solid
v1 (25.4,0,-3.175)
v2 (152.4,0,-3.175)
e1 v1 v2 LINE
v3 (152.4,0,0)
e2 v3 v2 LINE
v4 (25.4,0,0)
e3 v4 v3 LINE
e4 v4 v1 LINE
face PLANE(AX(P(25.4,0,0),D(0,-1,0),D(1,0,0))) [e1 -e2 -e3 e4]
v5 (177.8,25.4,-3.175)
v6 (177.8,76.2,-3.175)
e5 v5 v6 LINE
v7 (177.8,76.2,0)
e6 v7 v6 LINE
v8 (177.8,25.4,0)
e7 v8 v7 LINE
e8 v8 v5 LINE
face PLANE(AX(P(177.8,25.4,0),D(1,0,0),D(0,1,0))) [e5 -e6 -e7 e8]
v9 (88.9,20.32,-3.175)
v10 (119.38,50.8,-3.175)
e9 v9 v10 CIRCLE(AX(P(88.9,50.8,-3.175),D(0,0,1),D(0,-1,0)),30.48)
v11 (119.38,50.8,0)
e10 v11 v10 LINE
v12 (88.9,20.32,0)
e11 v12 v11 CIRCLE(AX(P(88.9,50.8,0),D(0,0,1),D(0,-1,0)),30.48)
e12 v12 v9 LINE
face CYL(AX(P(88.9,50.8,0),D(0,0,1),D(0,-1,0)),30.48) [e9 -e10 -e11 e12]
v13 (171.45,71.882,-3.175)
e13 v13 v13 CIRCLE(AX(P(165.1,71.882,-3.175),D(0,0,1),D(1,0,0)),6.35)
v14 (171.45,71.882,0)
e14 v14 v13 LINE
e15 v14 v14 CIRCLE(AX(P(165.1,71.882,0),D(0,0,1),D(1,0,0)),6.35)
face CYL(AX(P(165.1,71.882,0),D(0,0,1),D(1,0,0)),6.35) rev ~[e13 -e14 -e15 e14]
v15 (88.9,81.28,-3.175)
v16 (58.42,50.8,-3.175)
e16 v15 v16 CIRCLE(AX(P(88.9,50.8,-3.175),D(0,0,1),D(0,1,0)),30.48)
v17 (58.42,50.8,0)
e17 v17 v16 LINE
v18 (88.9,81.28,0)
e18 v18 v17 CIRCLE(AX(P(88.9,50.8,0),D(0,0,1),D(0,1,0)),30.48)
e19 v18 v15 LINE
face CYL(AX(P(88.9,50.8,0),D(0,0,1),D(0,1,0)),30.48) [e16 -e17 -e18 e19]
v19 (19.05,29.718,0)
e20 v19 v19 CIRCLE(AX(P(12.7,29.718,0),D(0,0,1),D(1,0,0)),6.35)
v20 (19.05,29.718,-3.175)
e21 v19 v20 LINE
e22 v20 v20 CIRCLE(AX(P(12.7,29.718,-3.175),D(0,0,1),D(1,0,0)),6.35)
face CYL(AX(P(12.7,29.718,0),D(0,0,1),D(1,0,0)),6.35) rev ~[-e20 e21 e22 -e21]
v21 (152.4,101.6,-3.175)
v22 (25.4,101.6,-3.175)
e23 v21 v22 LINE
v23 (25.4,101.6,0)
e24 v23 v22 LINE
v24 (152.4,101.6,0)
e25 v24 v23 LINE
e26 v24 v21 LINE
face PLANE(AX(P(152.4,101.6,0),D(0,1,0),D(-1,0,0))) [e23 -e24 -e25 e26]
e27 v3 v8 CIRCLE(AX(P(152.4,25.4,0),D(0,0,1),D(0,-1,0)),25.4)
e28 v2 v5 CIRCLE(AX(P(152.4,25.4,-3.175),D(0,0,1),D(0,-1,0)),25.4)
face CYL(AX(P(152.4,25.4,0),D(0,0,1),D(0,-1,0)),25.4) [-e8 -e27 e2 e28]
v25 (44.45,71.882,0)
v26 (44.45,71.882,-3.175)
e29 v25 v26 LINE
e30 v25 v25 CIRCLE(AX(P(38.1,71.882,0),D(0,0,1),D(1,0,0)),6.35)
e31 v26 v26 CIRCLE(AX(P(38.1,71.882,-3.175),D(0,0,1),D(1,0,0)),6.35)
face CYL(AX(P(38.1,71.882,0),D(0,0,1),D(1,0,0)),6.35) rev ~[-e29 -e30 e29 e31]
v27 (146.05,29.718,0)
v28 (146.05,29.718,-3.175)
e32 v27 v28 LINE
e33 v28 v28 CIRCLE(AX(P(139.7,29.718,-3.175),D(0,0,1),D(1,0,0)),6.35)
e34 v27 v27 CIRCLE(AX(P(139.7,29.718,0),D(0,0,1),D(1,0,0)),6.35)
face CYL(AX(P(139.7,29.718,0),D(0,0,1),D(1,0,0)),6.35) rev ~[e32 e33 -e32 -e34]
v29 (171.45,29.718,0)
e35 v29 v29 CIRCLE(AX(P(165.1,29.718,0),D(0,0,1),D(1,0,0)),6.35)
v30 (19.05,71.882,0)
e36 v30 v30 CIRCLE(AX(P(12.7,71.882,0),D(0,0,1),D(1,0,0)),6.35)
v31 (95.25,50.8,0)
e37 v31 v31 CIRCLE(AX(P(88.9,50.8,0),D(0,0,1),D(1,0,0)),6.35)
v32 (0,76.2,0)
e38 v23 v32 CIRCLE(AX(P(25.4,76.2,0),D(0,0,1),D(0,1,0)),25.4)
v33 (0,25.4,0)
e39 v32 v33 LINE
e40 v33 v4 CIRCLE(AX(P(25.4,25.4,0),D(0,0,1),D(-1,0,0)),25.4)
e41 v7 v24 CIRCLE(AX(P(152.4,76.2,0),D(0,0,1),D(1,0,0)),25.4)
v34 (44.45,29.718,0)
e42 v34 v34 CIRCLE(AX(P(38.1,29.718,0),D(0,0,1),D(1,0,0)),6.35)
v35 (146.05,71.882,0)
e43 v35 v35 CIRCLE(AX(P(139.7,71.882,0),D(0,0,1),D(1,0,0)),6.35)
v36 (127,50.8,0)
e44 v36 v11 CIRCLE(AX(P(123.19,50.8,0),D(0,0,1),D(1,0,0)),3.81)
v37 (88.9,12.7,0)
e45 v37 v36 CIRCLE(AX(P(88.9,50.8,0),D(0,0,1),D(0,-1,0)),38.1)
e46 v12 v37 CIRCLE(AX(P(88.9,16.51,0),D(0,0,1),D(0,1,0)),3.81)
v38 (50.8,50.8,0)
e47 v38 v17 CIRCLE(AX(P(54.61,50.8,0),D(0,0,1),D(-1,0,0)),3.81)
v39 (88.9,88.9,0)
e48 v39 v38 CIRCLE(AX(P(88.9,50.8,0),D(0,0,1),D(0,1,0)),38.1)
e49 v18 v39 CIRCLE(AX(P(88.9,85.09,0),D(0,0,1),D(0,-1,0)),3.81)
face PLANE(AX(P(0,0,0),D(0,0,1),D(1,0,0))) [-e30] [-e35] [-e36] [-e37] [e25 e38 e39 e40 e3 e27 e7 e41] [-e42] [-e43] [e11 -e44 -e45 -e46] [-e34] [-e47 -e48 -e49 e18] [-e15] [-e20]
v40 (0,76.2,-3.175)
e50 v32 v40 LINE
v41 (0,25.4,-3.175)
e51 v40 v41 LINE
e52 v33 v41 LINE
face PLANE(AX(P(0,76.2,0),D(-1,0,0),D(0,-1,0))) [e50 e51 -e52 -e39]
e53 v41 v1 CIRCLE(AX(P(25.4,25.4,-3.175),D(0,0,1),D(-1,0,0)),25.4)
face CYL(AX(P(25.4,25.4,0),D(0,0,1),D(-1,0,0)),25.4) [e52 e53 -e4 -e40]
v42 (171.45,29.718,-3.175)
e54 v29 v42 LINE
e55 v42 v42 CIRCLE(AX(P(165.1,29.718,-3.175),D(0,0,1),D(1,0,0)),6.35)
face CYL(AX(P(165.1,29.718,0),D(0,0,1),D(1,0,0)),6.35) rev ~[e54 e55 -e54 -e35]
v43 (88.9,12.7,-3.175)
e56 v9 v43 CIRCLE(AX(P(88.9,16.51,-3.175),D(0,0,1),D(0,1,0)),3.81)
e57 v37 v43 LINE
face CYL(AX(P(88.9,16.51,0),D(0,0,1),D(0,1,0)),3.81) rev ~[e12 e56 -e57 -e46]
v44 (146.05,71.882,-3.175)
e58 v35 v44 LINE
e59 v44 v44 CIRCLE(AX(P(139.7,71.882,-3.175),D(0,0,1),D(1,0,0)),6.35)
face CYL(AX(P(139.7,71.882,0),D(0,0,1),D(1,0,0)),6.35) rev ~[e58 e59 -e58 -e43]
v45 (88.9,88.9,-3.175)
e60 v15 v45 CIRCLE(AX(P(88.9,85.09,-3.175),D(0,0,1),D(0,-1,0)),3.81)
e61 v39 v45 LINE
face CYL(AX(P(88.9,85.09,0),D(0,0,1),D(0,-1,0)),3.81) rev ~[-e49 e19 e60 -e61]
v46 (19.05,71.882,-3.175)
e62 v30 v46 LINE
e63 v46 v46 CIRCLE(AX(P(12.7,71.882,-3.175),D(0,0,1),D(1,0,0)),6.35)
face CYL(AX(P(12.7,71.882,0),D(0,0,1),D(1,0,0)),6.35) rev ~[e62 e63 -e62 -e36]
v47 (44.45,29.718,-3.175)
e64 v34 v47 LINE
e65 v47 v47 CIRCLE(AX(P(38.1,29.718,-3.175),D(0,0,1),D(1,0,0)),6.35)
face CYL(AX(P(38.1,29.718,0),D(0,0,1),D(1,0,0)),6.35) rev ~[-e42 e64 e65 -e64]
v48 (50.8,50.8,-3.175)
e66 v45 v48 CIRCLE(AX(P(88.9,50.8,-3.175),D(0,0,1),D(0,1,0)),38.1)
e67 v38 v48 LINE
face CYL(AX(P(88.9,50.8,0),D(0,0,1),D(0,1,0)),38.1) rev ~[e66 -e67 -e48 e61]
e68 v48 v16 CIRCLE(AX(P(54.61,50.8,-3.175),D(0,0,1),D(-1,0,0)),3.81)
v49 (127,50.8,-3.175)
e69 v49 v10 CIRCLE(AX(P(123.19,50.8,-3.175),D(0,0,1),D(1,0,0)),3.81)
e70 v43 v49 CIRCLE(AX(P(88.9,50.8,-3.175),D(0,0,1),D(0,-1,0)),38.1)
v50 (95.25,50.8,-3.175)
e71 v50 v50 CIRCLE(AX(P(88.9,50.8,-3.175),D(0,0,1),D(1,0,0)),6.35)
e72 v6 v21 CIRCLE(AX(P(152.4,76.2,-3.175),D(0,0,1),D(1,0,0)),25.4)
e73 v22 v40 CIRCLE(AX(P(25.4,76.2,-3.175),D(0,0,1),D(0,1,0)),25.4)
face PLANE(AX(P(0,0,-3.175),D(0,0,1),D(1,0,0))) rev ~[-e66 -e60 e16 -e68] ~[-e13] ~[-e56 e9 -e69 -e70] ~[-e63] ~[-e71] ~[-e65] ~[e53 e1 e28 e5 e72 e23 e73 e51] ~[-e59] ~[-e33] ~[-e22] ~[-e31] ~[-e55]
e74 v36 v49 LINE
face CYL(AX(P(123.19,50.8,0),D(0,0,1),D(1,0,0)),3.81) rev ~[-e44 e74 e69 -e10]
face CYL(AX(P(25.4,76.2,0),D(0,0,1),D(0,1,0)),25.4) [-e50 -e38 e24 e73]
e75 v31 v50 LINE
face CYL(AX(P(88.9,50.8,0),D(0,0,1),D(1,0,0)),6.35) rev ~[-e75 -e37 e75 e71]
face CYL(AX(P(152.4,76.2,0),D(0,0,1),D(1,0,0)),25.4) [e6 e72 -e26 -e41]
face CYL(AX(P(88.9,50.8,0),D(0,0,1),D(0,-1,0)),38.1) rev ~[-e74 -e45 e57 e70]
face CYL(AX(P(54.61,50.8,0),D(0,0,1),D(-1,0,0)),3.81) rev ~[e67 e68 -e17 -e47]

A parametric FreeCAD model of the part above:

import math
import FreeCAD as App
import Part
import Sketcher

V = App.Vector
Q = App.Units.Quantity

doc = App.newDocument("Part")
body = doc.addObject("PartDesign::Body", "Body")

sketch1 = body.newObject("Sketcher::SketchObject", "Sketch")
sketch1.AttachmentSupport = (doc.getObject("XY_Plane"), [""])
sketch1.MapMode = "FlatFace"
sketch1.addGeometry(Part.ArcOfCircle(Part.Circle(V(25.4, 25.4, 0), V(0, 0, 1), 25.4), math.radians(180), math.radians(270)), False)
sketch1.addGeometry(Part.LineSegment(V(25.4, 0, 0), V(152.4, 0, 0)), False)
sketch1.addGeometry(Part.ArcOfCircle(Part.Circle(V(152.4, 25.4, 0), V(0, 0, 1), 25.4), math.radians(-90), math.radians(0)), False)
sketch1.addGeometry(Part.LineSegment(V(177.8, 25.4, 0), V(177.8, 76.2, 0)), False)
sketch1.addGeometry(Part.ArcOfCircle(Part.Circle(V(152.4, 76.2, 0), V(0, 0, 1), 25.4), math.radians(0), math.radians(90)), False)
sketch1.addGeometry(Part.LineSegment(V(152.4, 101.6, 0), V(25.4, 101.6, 0)), False)
sketch1.addGeometry(Part.ArcOfCircle(Part.Circle(V(25.4, 76.2, 0), V(0, 0, 1), 25.4), math.radians(90), math.radians(180)), False)
sketch1.addGeometry(Part.LineSegment(V(0, 76.2, 0), V(0, 25.4, 0)), False)
sketch1.addGeometry(Part.ArcOfCircle(Part.Circle(V(88.9, 16.51, 0), V(0, 0, 1), 3.81), math.radians(90), math.radians(270)), False)
sketch1.addGeometry(Part.ArcOfCircle(Part.Circle(V(88.9, 50.8, 0), V(0, 0, 1), 30.48), math.radians(-90), math.radians(0)), False)
sketch1.addGeometry(Part.ArcOfCircle(Part.Circle(V(123.19, 50.8, 0), V(0, 0, 1), 3.81), math.radians(0), math.radians(180)), False)
sketch1.addGeometry(Part.ArcOfCircle(Part.Circle(V(88.9, 50.8, 0), V(0, 0, 1), 38.1), math.radians(-90), math.radians(0)), False)
sketch1.addGeometry(Part.Circle(V(88.9, 50.8, 0), V(0, 0, 1), 6.35), False)
sketch1.addGeometry(Part.ArcOfCircle(Part.Circle(V(88.9, 50.8, 0), V(0, 0, 1), 38.1), math.radians(90), math.radians(180)), False)
sketch1.addGeometry(Part.ArcOfCircle(Part.Circle(V(88.9, 85.09, 0), V(0, 0, 1), 3.81), math.radians(-90), math.radians(90)), False)
sketch1.addGeometry(Part.ArcOfCircle(Part.Circle(V(88.9, 50.8, 0), V(0, 0, 1), 30.48), math.radians(90), math.radians(180)), False)
sketch1.addGeometry(Part.ArcOfCircle(Part.Circle(V(54.61, 50.8, 0), V(0, 0, 1), 3.81), math.radians(180), math.radians(360)), False)
sketch1.addConstraint(Sketcher.Constraint("Tangent", 0, 2, 1, 1))
sketch1.addConstraint(Sketcher.Constraint("Tangent", 1, 2, 2, 1))
sketch1.addConstraint(Sketcher.Constraint("Tangent", 2, 2, 3, 1))
sketch1.addConstraint(Sketcher.Constraint("Tangent", 3, 2, 4, 1))
sketch1.addConstraint(Sketcher.Constraint("Tangent", 4, 2, 5, 1))
sketch1.addConstraint(Sketcher.Constraint("Tangent", 5, 2, 6, 1))
sketch1.addConstraint(Sketcher.Constraint("Tangent", 6, 2, 7, 1))
sketch1.addConstraint(Sketcher.Constraint("Tangent", 7, 2, 0, 1))
sketch1.addConstraint(Sketcher.Constraint("Tangent", 8, 1, 9, 1))
sketch1.addConstraint(Sketcher.Constraint("Tangent", 9, 2, 10, 2))
sketch1.addConstraint(Sketcher.Constraint("Tangent", 10, 1, 11, 2))
sketch1.addConstraint(Sketcher.Constraint("Tangent", 11, 1, 8, 2))
sketch1.addConstraint(Sketcher.Constraint("Tangent", 13, 1, 14, 2))
sketch1.addConstraint(Sketcher.Constraint("Tangent", 14, 1, 15, 1))
sketch1.addConstraint(Sketcher.Constraint("Tangent", 15, 2, 16, 2))
sketch1.addConstraint(Sketcher.Constraint("Tangent", 16, 1, 13, 2))
sketch1.addConstraint(Sketcher.Constraint("Horizontal", 1))
sketch1.addConstraint(Sketcher.Constraint("Vertical", 3))
sketch1.addConstraint(Sketcher.Constraint("Horizontal", 5))
sketch1.addConstraint(Sketcher.Constraint("Vertical", 7))
sketch1.addConstraint(Sketcher.Constraint("Coincident", 11, 3, 9, 3))
sketch1.addConstraint(Sketcher.Constraint("Coincident", 12, 3, 9, 3))
sketch1.addConstraint(Sketcher.Constraint("Coincident", 13, 3, 9, 3))
sketch1.addConstraint(Sketcher.Constraint("Coincident", 15, 3, 9, 3))
sketch1.addConstraint(Sketcher.Constraint("Equal", 0, 2))
sketch1.addConstraint(Sketcher.Constraint("Equal", 2, 4))
sketch1.addConstraint(Sketcher.Constraint("Equal", 4, 6))
sketch1.addConstraint(Sketcher.Constraint("Equal", 11, 13))
sketch1.addConstraint(Sketcher.Constraint("Equal", 10, 14))
sketch1.addConstraint(Sketcher.Constraint("PointOnObject", 0, 2, -1))
sketch1.addConstraint(Sketcher.Constraint("PointOnObject", 6, 2, -2))
sketch1.addConstraint(Sketcher.Constraint("Horizontal", 9, 3, 10, 3))
sketch1.addConstraint(Sketcher.Constraint("Horizontal", 15, 3, 16, 3))
sketch1.addConstraint(Sketcher.Constraint("Vertical", 8, 3, 9, 3))
sketch1.addConstraint(Sketcher.Constraint("Vertical", 13, 3, 14, 3))
sketch1.addConstraint(Sketcher.Constraint("Radius", 0, Q("1 in")))
sketch1.addConstraint(Sketcher.Constraint("Diameter", 12, Q("0.5 in")))
sketch1.addConstraint(Sketcher.Constraint("DistanceY", 3, 1, 3, 2, Q("2 in")))
sketch1.addConstraint(Sketcher.Constraint("Radius", 8, Q("0.15 in")))
sketch1.addConstraint(Sketcher.Constraint("DistanceY", -1, 1, 9, 3, Q("2 in")))
sketch1.addConstraint(Sketcher.Constraint("DistanceX", -1, 1, 2, 2, Q("7 in")))
sketch1.addConstraint(Sketcher.Constraint("DistanceX", -1, 1, 16, 1, Q("2 in")))
sketch1.addConstraint(Sketcher.Constraint("DistanceX", -1, 1, 8, 3, Q("3.5 in")))
pad1 = body.newObject("PartDesign::Pad", "Pad")
pad1.Profile = sketch1
pad1.Length = Q("0.125 in")
pad1.Reversed = True

sketch2 = body.newObject("Sketcher::SketchObject", "Sketch001")
sketch2.AttachmentSupport = (doc.getObject("XY_Plane"), [""])
sketch2.MapMode = "FlatFace"
sketch2.addGeometry(Part.Circle(V(12.7, 71.882, 0), V(0, 0, 1), 6.35), False)
sketch2.addGeometry(Part.Circle(V(38.1, 71.882, 0), V(0, 0, 1), 6.35), False)
sketch2.addGeometry(Part.Circle(V(12.7, 29.718, 0), V(0, 0, 1), 6.35), False)
sketch2.addGeometry(Part.Circle(V(38.1, 29.718, 0), V(0, 0, 1), 6.35), False)
sketch2.addGeometry(Part.Circle(V(165.1, 71.882, 0), V(0, 0, 1), 6.35), False)
sketch2.addGeometry(Part.Circle(V(139.7, 71.882, 0), V(0, 0, 1), 6.35), False)
sketch2.addGeometry(Part.Circle(V(165.1, 29.718, 0), V(0, 0, 1), 6.35), False)
sketch2.addGeometry(Part.Circle(V(139.7, 29.718, 0), V(0, 0, 1), 6.35), False)
sketch2.addConstraint(Sketcher.Constraint("Equal", 0, 1))
sketch2.addConstraint(Sketcher.Constraint("Equal", 1, 2))
sketch2.addConstraint(Sketcher.Constraint("Equal", 2, 3))
sketch2.addConstraint(Sketcher.Constraint("Equal", 3, 4))
sketch2.addConstraint(Sketcher.Constraint("Equal", 4, 5))
sketch2.addConstraint(Sketcher.Constraint("Equal", 5, 6))
sketch2.addConstraint(Sketcher.Constraint("Equal", 6, 7))
sketch2.addConstraint(Sketcher.Constraint("Horizontal", 0, 3, 1, 3))
sketch2.addConstraint(Sketcher.Constraint("Horizontal", 2, 3, 3, 3))
sketch2.addConstraint(Sketcher.Constraint("Horizontal", 1, 3, 4, 3))
sketch2.addConstraint(Sketcher.Constraint("Horizontal", 4, 3, 5, 3))
sketch2.addConstraint(Sketcher.Constraint("Horizontal", 3, 3, 6, 3))
sketch2.addConstraint(Sketcher.Constraint("Horizontal", 6, 3, 7, 3))
sketch2.addConstraint(Sketcher.Constraint("Vertical", 0, 3, 2, 3))
sketch2.addConstraint(Sketcher.Constraint("Vertical", 1, 3, 3, 3))
sketch2.addConstraint(Sketcher.Constraint("Vertical", 4, 3, 6, 3))
sketch2.addConstraint(Sketcher.Constraint("Vertical", 5, 3, 7, 3))
sketch2.addConstraint(Sketcher.Constraint("Diameter", 0, Q("0.5 in")))
sketch2.addConstraint(Sketcher.Constraint("DistanceX", 0, 3, 1, 3, Q("1 in")))
sketch2.addConstraint(Sketcher.Constraint("DistanceX", 5, 3, 4, 3, Q("1 in")))
sketch2.addConstraint(Sketcher.Constraint("DistanceX", -1, 1, 0, 3, Q("0.5 in")))
sketch2.addConstraint(Sketcher.Constraint("DistanceX", 1, 3, 4, 3, Q("5 in")))
sketch2.addConstraint(Sketcher.Constraint("DistanceY", -1, 1, 0, 3, Q("2.83 in")))
sketch2.addConstraint(Sketcher.Constraint("DistanceY", -1, 1, 2, 3, Q("1.17 in")))
pocket1 = body.newObject("PartDesign::Pocket", "Pocket")
pocket1.Profile = sketch2
pocket1.Length = Q("1 in")

doc.recompute()
